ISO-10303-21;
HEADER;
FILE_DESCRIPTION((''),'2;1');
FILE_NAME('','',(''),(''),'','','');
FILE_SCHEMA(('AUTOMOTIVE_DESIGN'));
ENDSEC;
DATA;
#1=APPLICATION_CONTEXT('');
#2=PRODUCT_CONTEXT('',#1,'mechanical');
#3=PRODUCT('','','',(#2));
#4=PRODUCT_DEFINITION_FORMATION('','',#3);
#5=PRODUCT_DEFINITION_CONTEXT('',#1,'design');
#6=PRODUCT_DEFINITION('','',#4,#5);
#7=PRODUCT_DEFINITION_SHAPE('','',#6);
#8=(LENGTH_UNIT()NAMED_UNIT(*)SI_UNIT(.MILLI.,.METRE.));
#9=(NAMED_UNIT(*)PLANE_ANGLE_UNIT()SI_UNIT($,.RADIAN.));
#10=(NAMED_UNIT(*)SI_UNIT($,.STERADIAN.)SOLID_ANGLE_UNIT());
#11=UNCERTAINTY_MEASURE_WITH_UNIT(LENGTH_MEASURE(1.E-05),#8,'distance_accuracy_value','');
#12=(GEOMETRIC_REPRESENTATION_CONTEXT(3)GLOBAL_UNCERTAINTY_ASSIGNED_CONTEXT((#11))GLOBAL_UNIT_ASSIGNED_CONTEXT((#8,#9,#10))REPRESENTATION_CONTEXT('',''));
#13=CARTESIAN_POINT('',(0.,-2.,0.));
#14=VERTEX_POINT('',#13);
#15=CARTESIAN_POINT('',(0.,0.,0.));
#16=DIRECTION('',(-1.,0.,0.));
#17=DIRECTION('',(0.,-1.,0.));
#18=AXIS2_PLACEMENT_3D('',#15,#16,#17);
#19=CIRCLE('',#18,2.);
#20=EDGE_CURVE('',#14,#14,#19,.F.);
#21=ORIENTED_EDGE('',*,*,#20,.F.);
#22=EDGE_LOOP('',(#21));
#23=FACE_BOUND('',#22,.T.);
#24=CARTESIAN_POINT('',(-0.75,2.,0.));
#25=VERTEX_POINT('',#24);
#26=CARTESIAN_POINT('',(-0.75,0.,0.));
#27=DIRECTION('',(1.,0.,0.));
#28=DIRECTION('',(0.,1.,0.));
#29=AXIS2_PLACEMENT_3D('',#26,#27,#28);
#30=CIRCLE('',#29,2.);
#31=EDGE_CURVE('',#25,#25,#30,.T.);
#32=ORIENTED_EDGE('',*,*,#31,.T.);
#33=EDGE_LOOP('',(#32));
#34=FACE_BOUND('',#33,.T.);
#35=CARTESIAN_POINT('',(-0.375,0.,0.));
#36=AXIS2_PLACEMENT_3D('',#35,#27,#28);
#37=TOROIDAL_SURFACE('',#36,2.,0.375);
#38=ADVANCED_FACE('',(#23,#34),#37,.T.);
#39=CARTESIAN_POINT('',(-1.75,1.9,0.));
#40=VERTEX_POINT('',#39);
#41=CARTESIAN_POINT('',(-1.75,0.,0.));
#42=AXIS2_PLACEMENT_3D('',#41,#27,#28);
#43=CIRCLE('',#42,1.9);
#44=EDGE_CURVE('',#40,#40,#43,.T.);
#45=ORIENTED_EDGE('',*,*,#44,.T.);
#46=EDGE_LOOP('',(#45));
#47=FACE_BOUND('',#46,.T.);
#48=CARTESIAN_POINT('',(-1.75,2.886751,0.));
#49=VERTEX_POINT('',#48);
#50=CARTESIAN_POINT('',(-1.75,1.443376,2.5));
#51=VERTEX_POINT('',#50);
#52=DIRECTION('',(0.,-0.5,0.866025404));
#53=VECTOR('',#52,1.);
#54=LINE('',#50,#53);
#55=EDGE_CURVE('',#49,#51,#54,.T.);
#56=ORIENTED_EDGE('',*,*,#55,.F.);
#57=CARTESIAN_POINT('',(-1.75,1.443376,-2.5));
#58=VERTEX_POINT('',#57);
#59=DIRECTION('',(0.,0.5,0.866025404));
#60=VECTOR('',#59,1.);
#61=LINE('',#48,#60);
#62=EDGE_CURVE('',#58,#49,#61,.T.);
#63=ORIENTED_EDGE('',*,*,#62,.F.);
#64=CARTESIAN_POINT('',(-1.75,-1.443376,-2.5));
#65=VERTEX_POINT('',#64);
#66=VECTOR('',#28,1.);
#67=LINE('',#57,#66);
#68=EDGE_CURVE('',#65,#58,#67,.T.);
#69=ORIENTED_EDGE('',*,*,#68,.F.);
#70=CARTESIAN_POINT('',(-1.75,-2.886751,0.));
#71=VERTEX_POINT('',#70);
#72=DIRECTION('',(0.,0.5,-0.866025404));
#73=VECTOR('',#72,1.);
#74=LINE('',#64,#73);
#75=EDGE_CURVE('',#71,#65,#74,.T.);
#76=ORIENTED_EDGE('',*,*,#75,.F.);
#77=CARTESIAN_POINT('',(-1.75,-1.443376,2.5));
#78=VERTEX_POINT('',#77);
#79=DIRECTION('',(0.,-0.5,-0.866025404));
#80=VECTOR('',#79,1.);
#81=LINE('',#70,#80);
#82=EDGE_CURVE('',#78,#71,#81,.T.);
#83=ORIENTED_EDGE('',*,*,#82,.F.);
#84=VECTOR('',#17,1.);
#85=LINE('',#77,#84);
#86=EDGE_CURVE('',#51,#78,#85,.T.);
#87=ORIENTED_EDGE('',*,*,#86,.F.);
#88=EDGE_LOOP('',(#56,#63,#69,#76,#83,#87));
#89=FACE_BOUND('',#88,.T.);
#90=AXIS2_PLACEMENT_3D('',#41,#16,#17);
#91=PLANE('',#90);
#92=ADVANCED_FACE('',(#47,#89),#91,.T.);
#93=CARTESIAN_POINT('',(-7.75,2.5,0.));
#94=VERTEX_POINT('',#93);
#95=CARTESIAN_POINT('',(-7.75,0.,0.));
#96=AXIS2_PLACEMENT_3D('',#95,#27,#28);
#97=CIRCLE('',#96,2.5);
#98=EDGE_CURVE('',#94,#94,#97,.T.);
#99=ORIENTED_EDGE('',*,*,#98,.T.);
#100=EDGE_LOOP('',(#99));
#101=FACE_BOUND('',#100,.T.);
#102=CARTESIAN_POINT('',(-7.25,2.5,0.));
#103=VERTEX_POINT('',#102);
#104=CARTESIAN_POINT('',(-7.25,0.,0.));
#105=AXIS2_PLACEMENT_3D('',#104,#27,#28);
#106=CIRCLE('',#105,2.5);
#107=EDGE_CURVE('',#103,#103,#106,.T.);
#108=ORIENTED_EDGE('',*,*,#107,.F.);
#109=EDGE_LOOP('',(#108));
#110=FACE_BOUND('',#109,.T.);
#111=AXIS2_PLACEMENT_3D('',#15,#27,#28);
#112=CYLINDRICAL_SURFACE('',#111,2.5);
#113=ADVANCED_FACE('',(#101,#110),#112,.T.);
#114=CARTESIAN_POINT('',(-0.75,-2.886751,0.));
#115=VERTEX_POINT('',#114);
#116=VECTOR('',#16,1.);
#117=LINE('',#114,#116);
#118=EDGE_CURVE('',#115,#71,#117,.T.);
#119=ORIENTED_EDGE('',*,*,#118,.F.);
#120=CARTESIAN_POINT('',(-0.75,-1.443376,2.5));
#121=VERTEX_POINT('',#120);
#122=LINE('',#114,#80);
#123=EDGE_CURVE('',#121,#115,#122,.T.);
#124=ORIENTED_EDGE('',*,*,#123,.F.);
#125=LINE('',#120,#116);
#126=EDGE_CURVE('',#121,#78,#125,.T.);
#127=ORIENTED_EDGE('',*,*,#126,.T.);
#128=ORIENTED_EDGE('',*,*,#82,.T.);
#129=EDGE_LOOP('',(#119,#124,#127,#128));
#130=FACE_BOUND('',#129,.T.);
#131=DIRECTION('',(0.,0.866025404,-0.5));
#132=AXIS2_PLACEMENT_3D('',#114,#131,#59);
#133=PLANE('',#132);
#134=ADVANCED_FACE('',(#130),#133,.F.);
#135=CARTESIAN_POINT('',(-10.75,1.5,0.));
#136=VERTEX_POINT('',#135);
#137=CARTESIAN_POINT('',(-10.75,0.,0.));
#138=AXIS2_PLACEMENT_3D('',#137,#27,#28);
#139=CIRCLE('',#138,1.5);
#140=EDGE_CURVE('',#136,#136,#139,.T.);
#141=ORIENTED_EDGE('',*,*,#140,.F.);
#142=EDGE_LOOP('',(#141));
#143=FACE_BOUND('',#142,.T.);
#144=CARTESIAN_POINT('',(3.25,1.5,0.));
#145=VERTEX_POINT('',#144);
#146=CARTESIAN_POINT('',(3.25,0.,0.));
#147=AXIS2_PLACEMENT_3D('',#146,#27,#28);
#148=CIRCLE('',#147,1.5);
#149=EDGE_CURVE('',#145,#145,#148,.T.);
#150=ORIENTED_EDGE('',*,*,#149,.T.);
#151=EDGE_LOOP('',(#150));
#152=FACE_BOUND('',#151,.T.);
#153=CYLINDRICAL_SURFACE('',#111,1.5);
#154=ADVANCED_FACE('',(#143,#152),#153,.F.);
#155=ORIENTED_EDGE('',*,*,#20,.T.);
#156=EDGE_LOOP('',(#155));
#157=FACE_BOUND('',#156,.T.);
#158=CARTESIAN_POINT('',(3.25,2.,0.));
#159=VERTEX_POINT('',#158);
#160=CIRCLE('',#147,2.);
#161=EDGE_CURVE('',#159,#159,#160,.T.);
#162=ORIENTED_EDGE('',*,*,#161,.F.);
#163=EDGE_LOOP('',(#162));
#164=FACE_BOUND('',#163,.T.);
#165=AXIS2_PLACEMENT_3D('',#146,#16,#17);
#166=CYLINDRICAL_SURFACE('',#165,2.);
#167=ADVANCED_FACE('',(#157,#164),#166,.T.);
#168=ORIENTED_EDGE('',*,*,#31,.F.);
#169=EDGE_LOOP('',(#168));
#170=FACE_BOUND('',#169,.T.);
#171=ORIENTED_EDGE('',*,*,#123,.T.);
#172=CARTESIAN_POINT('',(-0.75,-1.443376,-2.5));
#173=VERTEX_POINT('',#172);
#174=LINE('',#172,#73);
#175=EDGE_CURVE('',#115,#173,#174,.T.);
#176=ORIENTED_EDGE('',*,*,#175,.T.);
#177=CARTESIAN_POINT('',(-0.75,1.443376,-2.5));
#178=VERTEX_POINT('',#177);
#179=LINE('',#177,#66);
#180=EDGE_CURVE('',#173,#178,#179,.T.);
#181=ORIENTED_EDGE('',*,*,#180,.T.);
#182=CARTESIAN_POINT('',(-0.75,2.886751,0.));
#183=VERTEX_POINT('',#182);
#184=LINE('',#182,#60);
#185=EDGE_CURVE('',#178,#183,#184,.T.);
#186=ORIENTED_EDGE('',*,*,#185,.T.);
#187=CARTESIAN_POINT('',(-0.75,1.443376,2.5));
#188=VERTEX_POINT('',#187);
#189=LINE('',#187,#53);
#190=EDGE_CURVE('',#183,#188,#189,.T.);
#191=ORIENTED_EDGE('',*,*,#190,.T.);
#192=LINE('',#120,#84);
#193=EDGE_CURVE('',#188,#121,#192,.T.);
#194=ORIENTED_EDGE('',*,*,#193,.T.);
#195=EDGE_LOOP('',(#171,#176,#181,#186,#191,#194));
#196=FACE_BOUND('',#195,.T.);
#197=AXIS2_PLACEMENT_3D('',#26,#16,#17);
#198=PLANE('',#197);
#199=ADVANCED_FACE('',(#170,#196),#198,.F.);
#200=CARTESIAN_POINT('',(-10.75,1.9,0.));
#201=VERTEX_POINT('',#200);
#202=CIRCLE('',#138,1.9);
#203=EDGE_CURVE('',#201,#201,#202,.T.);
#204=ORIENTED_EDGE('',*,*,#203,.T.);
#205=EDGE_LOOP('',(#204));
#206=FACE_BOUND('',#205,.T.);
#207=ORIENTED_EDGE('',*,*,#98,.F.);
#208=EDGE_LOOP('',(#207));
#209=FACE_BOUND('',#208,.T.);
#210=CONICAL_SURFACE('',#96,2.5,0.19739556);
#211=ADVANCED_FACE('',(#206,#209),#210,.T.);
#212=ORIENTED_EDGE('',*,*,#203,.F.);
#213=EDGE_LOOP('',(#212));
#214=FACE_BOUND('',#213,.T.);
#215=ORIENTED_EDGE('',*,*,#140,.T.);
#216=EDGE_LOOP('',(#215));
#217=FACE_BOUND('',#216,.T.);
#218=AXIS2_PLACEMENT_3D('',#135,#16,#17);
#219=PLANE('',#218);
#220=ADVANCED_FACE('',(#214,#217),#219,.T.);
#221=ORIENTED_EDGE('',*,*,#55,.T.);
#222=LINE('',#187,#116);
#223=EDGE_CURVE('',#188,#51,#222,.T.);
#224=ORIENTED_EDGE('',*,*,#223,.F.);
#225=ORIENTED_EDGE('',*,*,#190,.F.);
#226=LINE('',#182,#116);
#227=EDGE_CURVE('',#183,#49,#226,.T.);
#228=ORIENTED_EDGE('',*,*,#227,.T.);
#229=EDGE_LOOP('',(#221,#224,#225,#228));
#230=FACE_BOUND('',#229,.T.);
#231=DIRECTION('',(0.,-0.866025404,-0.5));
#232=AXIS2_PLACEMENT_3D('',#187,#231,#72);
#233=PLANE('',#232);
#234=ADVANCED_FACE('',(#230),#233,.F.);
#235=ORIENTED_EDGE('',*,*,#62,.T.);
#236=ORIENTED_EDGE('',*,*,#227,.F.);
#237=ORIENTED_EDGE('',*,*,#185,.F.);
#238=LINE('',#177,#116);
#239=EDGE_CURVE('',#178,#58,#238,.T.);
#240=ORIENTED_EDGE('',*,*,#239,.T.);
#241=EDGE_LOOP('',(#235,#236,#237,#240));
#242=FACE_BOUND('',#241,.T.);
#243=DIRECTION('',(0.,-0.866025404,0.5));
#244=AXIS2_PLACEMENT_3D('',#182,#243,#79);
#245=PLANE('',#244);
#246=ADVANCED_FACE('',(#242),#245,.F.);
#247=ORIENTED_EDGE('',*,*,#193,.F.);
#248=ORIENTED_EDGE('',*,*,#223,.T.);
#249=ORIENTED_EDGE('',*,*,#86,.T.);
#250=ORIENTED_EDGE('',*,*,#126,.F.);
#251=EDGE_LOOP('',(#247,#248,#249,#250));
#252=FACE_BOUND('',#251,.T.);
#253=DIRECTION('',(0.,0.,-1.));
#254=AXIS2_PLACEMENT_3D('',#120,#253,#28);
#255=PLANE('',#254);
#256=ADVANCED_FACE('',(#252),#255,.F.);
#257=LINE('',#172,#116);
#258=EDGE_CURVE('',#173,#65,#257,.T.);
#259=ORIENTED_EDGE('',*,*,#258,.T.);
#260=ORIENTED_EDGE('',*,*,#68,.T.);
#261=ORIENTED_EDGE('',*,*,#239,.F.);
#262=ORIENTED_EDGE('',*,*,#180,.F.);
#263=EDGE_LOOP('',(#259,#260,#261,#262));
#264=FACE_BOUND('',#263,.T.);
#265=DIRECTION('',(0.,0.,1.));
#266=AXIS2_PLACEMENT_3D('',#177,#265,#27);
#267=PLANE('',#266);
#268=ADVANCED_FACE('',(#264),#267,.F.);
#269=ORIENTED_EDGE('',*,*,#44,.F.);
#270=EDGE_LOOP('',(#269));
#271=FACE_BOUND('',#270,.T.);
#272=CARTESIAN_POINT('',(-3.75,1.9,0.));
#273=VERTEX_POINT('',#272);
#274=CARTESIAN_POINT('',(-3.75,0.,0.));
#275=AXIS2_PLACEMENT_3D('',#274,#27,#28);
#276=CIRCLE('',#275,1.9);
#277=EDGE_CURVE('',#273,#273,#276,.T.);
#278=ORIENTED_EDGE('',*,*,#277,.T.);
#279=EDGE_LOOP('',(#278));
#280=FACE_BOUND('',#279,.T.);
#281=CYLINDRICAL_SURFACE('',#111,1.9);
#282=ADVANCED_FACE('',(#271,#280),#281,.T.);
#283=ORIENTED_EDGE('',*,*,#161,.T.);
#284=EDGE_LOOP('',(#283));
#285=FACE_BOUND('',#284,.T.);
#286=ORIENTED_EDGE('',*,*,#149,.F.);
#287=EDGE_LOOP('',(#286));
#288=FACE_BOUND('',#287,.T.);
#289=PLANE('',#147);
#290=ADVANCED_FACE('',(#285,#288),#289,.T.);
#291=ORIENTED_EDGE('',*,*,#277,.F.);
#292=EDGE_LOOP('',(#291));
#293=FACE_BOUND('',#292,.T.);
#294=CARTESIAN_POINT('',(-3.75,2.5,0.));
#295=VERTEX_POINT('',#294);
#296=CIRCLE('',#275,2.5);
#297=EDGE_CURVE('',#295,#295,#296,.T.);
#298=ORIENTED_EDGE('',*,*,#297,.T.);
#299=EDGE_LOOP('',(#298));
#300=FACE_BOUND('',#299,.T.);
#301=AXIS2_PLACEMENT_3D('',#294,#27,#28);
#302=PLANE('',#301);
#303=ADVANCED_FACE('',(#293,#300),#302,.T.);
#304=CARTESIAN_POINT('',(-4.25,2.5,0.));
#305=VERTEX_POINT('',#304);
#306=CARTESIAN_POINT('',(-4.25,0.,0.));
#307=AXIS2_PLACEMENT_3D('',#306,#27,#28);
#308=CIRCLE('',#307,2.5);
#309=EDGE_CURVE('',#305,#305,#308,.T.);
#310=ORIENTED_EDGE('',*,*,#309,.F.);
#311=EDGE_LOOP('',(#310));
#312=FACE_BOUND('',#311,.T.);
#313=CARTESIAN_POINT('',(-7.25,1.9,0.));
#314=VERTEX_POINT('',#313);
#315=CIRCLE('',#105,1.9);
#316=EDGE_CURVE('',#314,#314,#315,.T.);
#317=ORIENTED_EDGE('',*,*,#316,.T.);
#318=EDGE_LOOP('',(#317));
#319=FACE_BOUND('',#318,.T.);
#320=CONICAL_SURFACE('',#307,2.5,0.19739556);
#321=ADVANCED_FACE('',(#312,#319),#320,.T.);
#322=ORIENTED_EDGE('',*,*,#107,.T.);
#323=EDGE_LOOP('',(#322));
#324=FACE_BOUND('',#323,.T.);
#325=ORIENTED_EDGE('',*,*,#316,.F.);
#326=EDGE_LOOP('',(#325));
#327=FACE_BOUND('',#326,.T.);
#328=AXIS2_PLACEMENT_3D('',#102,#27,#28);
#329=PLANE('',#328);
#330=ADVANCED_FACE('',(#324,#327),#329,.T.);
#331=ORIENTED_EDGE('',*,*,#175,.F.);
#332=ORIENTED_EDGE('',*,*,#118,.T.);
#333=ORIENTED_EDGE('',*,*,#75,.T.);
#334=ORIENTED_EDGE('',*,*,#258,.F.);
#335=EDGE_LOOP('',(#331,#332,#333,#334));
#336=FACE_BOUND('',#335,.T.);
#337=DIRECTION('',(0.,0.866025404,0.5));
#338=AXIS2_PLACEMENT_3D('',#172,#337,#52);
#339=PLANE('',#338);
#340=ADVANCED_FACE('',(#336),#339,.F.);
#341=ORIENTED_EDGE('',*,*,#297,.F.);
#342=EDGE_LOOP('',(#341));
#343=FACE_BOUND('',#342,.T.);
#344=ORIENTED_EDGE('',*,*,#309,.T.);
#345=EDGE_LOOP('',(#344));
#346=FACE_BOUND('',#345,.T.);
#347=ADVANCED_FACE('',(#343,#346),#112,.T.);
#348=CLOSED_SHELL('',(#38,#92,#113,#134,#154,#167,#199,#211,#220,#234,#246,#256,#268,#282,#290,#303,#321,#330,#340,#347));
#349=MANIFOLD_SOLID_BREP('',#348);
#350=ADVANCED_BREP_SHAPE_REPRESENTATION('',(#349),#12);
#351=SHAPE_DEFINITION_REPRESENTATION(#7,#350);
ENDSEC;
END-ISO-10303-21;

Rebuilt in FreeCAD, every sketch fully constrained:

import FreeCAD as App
import Part
import Sketcher
Q = App.Units.Quantity

doc = App.newDocument("Part")
body = doc.addObject("PartDesign::Body", "Body")
body.AllowCompound = True

# Sketch on XY plane
sketch1 = body.newObject("Sketcher::SketchObject", "Sketch")
sketch1.AttachmentSupport = (doc.getObject("XY_Plane"), [""])
sketch1.MapMode = "FlatFace"
sketch1.addGeometry([
    Part.Circle(App.Vector(-0.375, 2, 0), App.Vector(0, 0, 1), 0.375),  # 0
    Part.LineSegment(App.Vector(-10.75, 1.5, 0), App.Vector(-1.75, 1.5, 0)),  # 1
    Part.LineSegment(App.Vector(-1.75, 1.5, 0), App.Vector(-1.75, 1.9, 0)),  # 2
    Part.LineSegment(App.Vector(-1.75, 1.9, 0), App.Vector(-3.75, 1.9, 0)),  # 3
    Part.LineSegment(App.Vector(-3.75, 1.9, 0), App.Vector(-3.75, 2.5, 0)),  # 4
    Part.LineSegment(App.Vector(-3.75, 2.5, 0), App.Vector(-4.25, 2.5, 0)),  # 5
    Part.LineSegment(App.Vector(-4.25, 2.5, 0), App.Vector(-7.25, 1.9, 0)),  # 6
    Part.LineSegment(App.Vector(-7.25, 1.9, 0), App.Vector(-7.25, 2.5, 0)),  # 7
    Part.LineSegment(App.Vector(-7.25, 2.5, 0), App.Vector(-7.75, 2.5, 0)),  # 8
    Part.LineSegment(App.Vector(-7.75, 2.5, 0), App.Vector(-10.75, 1.9, 0)),  # 9
    Part.LineSegment(App.Vector(-10.75, 1.9, 0), App.Vector(-10.75, 1.5, 0)),  # 10
], False)
sketch1.addConstraint([
    Sketcher.Constraint("Coincident", 1, 2, 2, 1),
    Sketcher.Constraint("Coincident", 2, 2, 3, 1),
    Sketcher.Constraint("Coincident", 3, 2, 4, 1),
    Sketcher.Constraint("Coincident", 4, 2, 5, 1),
    Sketcher.Constraint("Coincident", 5, 2, 6, 1),
    Sketcher.Constraint("Coincident", 6, 2, 7, 1),
    Sketcher.Constraint("Coincident", 7, 2, 8, 1),
    Sketcher.Constraint("Coincident", 8, 2, 9, 1),
    Sketcher.Constraint("Coincident", 9, 2, 10, 1),
    Sketcher.Constraint("Coincident", 10, 2, 1, 1),
    Sketcher.Constraint("Horizontal", 1),
    Sketcher.Constraint("Vertical", 2),
    Sketcher.Constraint("Horizontal", 3),
    Sketcher.Constraint("Vertical", 4),
    Sketcher.Constraint("Horizontal", 5),
    Sketcher.Constraint("Vertical", 7),
    Sketcher.Constraint("Horizontal", 8),
    Sketcher.Constraint("Vertical", 10),
    Sketcher.Constraint("Parallel", 6, 9),
    Sketcher.Constraint("Horizontal", 3, 2, 6, 2),
    Sketcher.Constraint("Horizontal", 5, 2, 7, 2),
    Sketcher.Constraint("Horizontal", 6, 2, 9, 2),
    Sketcher.Constraint("Equal", 5, 8),
    Sketcher.Constraint("Diameter", 0, 0.75),
    Sketcher.Constraint("DistanceX", 1, 1, 1, 2, 9.0),
    Sketcher.Constraint("DistanceX", 3, 2, 3, 1, 2.0),
    Sketcher.Constraint("DistanceX", 5, 2, 5, 1, 0.5),
    Sketcher.Constraint("DistanceY", 2, 1, 2, 2, 0.4),
    Sketcher.Constraint("DistanceY", 4, 1, 4, 2, 0.6),
    Sketcher.Constraint("DistanceY", -1, 1, 0, 3, 2.0),
    Sketcher.Constraint("DistanceY", -1, 1, 1, 2, 1.5),
    Sketcher.Constraint("DistanceX", 1, 2, -1, 1, 1.75),
    Sketcher.Constraint("DistanceX", 0, 3, -1, 1, 0.375),
])
revolution = body.newObject("PartDesign::Revolution", "Revolution")
revolution.Profile = sketch1
revolution.ReferenceAxis = (sketch1, ["H_Axis"])
revolution.Angle = 360

# Sketch on YZ plane
sketch2 = body.newObject("Sketcher::SketchObject", "Sketch001")
sketch2.AttachmentSupport = (doc.getObject("YZ_Plane"), [""])
sketch2.MapMode = "FlatFace"
sketch2.AttachmentOffset = App.Placement(App.Vector(0, 0, -1.75), App.Rotation())
sketch2.addGeometry([
    Part.LineSegment(App.Vector(1.443376, 2.5, 0), App.Vector(-1.443376, 2.5, 0)),  # 0
    Part.LineSegment(App.Vector(-1.443376, 2.5, 0), App.Vector(-2.886751, 0, 0)),  # 1
    Part.LineSegment(App.Vector(-2.886751, 0, 0), App.Vector(-1.443376, -2.5, 0)),  # 2
    Part.LineSegment(App.Vector(-1.443376, -2.5, 0), App.Vector(1.443376, -2.5, 0)),  # 3
    Part.LineSegment(App.Vector(1.443376, -2.5, 0), App.Vector(2.886751, 0, 0)),  # 4
    Part.LineSegment(App.Vector(2.886751, 0, 0), App.Vector(1.443376, 2.5, 0)),  # 5
    Part.Circle(App.Vector(0, 0, 0), App.Vector(0, 0, 1), 1.5),  # 6
], False)
sketch2.addConstraint([
    Sketcher.Constraint("Coincident", 0, 2, 1, 1),
    Sketcher.Constraint("Coincident", 1, 2, 2, 1),
    Sketcher.Constraint("Coincident", 2, 2, 3, 1),
    Sketcher.Constraint("Coincident", 3, 2, 4, 1),
    Sketcher.Constraint("Coincident", 4, 2, 5, 1),
    Sketcher.Constraint("Coincident", 5, 2, 0, 1),
    Sketcher.Constraint("Horizontal", 0),
    Sketcher.Constraint("Horizontal", 3),
    Sketcher.Constraint("Coincident", 6, 3, -1, 1),
    Sketcher.Constraint("Symmetric", 0, 2, 3, 2, -1, 1),
    Sketcher.Constraint("Symmetric", 1, 2, 4, 2, -1, 1),
    Sketcher.Constraint("PointOnObject", 1, 2, -1),
    Sketcher.Constraint("Parallel", 2, 5),
    Sketcher.Constraint("Vertical", 0, 2, 2, 2),
    Sketcher.Constraint("Diameter", 6, 3.0),
    Sketcher.Constraint("Angle", 1, Q("-120 deg")),
    Sketcher.Constraint("DistanceY", 2, 2, 0, 2, 5.0),
    Sketcher.Constraint("DistanceX", 0, 2, 0, 1, 2.886751),
])
pad1 = body.newObject("PartDesign::Pad", "Pad")
pad1.Profile = sketch2
pad1.Length = 1

# Sketch on YZ plane
sketch3 = body.newObject("Sketcher::SketchObject", "Sketch002")
sketch3.AttachmentSupport = (doc.getObject("YZ_Plane"), [""])
sketch3.MapMode = "FlatFace"
sketch3.AttachmentOffset = App.Placement(App.Vector(0, 0, -0.75), App.Rotation())
sketch3.addGeometry([
    Part.Circle(App.Vector(0, 0, 0), App.Vector(0, 0, 1), 2),
    Part.Circle(App.Vector(0, 0, 0), App.Vector(0, 0, 1), 1.5),
], False)
sketch3.addConstraint([
    Sketcher.Constraint("Coincident", 0, 3, -1, 1),
    Sketcher.Constraint("Coincident", 1, 3, -1, 1),
    Sketcher.Constraint("Diameter", 0, 4.0),
    Sketcher.Constraint("Diameter", 1, 3.0),
])
pad2 = body.newObject("PartDesign::Pad", "Pad001")
pad2.Profile = sketch3
pad2.Length = 4

doc.recompute()
